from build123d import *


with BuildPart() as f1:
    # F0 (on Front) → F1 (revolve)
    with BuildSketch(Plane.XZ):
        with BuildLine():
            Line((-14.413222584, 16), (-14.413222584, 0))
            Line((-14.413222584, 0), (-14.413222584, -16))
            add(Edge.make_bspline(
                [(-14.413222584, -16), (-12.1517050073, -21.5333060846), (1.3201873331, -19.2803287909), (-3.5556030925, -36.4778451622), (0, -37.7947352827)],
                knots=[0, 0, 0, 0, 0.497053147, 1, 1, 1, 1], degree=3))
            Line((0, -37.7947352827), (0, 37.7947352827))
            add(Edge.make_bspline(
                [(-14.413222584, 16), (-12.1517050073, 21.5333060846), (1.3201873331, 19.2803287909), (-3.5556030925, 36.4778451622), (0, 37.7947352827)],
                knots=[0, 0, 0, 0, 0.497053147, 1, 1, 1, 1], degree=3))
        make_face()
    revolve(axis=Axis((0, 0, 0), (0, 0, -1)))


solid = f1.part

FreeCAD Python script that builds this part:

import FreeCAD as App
import Part
import Sketcher
from FreeCAD import Vector

doc = App.newDocument("Part")
body = doc.addObject("PartDesign::Body", "Body")

# Sketch on XZ plane
sketch1 = body.newObject("Sketcher::SketchObject", "Sketch")
sketch1.AttachmentSupport = (doc.getObject("XZ_Plane"), [""])
sketch1.MapMode = "FlatFace"
sketch1.addGeometry(Part.LineSegment(Vector(-14.413223, 16, 0), Vector(-14.413223, -16, 0)), False)
sketch1.addGeometry(Part.BSplineCurve([Vector(-14.413223, -16, 0), Vector(-12.151705, -21.533306, 0), Vector(1.320187, -19.280329, 0), Vector(-3.555603, -36.477845, 0), Vector(0, -37.794735, 0)], [4, 1, 4], [0, 0.497053147, 1], False, 3, [1, 1, 1, 1, 1], False), False)
sketch1.addGeometry(Part.LineSegment(Vector(0, -37.794735, 0), Vector(0, 37.794735, 0)), False)
sketch1.addGeometry(Part.BSplineCurve([Vector(-14.413223, 16, 0), Vector(-12.151705, 21.533306, 0), Vector(1.320187, 19.280329, 0), Vector(-3.555603, 36.477845, 0), Vector(0, 37.794735, 0)], [4, 1, 4], [0, 0.497053147, 1], False, 3, [1, 1, 1, 1, 1], False), False)
sketch1.addConstraint(Sketcher.Constraint("Block", 1))
sketch1.addConstraint(Sketcher.Constraint("Block", 3))
sketch1.addConstraint(Sketcher.Constraint("Coincident", 0, 2, 1, 1))
sketch1.addConstraint(Sketcher.Constraint("Coincident", 1, 2, 2, 1))
sketch1.addConstraint(Sketcher.Constraint("Coincident", 2, 2, 3, 2))
sketch1.addConstraint(Sketcher.Constraint("Coincident", 3, 1, 0, 1))
revolution = body.newObject("PartDesign::Revolution", "Revolution")
revolution.Profile = sketch1
revolution.ReferenceAxis = (sketch1, ["V_Axis"])
revolution.Angle = 360

doc.recompute()
